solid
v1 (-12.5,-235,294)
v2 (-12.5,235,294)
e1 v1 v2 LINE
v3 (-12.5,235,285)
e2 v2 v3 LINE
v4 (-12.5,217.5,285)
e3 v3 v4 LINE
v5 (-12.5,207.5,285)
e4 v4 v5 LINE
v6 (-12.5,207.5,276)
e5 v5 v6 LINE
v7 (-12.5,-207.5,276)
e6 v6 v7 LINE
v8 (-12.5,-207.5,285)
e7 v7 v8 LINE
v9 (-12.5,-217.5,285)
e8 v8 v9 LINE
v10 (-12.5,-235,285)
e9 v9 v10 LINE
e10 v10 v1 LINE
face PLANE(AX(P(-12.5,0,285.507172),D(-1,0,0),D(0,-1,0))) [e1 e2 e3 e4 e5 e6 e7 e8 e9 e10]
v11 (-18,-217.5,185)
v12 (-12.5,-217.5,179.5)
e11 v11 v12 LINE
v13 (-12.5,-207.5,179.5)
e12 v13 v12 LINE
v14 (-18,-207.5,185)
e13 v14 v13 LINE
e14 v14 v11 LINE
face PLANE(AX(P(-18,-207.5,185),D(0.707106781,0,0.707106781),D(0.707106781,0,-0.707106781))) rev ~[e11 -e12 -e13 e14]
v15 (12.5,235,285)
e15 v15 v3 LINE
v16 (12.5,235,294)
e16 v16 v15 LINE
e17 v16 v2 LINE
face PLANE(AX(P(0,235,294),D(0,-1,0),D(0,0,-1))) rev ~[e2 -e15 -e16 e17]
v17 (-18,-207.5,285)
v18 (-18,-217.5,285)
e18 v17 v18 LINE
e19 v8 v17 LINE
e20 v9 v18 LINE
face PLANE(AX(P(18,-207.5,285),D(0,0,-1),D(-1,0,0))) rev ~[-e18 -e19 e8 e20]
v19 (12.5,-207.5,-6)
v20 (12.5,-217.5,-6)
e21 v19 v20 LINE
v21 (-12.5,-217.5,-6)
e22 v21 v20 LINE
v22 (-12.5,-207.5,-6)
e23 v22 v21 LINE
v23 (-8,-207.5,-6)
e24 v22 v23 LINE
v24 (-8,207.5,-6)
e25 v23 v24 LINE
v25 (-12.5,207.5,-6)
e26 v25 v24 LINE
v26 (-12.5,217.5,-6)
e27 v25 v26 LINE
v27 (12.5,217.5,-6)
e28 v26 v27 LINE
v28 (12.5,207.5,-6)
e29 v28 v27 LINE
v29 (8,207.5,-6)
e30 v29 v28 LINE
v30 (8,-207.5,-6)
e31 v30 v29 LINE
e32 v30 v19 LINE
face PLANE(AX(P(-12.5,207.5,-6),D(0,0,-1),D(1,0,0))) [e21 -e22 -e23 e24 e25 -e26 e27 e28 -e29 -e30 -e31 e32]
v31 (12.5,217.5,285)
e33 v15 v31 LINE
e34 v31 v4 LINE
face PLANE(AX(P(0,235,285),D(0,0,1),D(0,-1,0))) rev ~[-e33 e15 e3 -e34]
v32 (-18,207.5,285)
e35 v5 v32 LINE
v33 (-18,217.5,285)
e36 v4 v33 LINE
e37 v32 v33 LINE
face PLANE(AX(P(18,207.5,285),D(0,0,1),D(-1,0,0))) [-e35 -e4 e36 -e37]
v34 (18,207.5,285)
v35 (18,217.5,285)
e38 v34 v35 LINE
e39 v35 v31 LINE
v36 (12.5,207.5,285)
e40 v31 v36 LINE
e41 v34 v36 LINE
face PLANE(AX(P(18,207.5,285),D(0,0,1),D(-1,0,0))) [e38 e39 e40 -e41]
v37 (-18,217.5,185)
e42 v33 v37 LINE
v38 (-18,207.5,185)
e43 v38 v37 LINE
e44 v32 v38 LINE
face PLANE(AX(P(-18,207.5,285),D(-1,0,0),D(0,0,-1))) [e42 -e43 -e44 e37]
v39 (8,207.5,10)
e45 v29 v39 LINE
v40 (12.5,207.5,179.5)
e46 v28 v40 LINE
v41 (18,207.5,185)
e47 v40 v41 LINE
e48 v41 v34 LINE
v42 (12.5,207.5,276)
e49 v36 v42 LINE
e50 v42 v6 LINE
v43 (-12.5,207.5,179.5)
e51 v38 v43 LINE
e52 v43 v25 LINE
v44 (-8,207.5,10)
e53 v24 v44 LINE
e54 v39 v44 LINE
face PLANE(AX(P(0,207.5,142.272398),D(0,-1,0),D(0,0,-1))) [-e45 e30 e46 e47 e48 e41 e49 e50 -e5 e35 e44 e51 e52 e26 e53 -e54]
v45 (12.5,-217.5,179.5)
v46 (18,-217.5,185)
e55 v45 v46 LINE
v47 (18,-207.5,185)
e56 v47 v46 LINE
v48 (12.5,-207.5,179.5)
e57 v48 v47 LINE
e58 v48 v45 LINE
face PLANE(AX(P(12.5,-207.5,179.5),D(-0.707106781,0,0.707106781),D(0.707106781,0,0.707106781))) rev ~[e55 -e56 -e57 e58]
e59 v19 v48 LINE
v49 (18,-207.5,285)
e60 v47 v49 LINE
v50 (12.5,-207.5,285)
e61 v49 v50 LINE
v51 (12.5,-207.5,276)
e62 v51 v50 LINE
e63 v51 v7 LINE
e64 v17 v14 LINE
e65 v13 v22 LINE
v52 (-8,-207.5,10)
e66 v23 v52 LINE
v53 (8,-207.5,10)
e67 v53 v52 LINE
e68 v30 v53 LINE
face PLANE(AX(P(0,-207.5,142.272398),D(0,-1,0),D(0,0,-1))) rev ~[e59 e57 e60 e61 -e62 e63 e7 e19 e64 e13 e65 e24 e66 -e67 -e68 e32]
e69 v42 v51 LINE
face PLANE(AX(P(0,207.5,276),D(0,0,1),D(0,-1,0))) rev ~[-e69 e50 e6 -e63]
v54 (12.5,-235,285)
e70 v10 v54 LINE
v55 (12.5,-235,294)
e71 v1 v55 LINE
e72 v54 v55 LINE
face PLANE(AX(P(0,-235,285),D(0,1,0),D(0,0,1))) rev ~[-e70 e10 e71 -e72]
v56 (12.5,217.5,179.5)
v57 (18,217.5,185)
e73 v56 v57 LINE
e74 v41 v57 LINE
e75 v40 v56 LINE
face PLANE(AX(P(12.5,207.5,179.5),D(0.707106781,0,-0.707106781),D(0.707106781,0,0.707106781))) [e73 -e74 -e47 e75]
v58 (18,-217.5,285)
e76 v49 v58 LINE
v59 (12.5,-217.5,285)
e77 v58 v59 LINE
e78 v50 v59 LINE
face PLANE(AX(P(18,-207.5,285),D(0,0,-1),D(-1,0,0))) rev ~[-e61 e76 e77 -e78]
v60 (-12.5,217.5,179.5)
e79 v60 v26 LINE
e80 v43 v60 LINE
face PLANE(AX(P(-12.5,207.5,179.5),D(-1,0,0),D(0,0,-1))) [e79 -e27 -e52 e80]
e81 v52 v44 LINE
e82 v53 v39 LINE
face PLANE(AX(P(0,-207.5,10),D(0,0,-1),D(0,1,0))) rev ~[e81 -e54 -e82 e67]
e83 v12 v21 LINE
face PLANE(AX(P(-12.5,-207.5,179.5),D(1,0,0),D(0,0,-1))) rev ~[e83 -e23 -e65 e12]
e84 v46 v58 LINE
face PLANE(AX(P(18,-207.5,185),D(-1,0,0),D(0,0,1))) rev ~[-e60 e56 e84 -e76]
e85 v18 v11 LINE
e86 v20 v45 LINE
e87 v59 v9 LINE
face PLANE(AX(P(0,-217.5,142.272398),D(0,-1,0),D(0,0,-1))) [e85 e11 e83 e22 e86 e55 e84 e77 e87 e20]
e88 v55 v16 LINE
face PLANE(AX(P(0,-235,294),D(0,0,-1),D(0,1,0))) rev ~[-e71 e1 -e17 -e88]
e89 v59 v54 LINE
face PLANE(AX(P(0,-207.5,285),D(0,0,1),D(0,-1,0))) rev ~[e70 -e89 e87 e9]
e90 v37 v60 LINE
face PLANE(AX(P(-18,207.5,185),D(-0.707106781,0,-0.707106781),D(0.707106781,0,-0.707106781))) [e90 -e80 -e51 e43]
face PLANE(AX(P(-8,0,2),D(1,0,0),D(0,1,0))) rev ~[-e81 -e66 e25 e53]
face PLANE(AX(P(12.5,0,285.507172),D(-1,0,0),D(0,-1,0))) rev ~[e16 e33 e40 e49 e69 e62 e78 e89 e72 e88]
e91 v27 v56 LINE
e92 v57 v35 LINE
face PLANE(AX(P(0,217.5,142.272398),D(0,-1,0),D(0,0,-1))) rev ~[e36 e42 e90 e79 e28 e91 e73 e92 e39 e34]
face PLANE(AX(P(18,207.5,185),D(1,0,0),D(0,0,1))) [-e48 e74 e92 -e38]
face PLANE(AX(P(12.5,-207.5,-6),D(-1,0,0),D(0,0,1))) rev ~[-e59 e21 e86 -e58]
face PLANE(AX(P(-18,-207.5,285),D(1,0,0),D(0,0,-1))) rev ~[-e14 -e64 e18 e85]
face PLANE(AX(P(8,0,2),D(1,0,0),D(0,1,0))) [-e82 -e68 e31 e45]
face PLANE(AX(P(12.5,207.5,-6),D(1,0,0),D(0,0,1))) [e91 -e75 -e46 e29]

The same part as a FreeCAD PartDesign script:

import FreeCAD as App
import Part
import Sketcher
from FreeCAD import Vector
Q = App.Units.Quantity

doc = App.newDocument("Part")
body = doc.addObject("PartDesign::Body", "Body")

sketch1 = body.newObject("Sketcher::SketchObject", "Sketch")
sketch1.AttachmentSupport = (doc.getObject("YZ_Plane"), [""])
sketch1.MapMode = "FlatFace"
sketch1.addGeometry([
    Part.LineSegment(Vector(235, 294, 0), Vector(-235, 294, 0)),
    Part.LineSegment(Vector(-235, 294, 0), Vector(-235, 285, 0)),
    Part.LineSegment(Vector(-235, 285, 0), Vector(-208, 285, 0)),
    Part.LineSegment(Vector(-208, 285, 0), Vector(-208, 276, 0)),
    Part.LineSegment(Vector(-208, 276, 0), Vector(208, 276, 0)),
    Part.LineSegment(Vector(208, 276, 0), Vector(208, 285, 0)),
    Part.LineSegment(Vector(208, 285, 0), Vector(235, 285, 0)),
    Part.LineSegment(Vector(235, 285, 0), Vector(235, 294, 0)),
], False)
sketch1.addConstraint([
    Sketcher.Constraint("Coincident", 0, 2, 1, 1),
    Sketcher.Constraint("Coincident", 1, 2, 2, 1),
    Sketcher.Constraint("Coincident", 2, 2, 3, 1),
    Sketcher.Constraint("Coincident", 3, 2, 4, 1),
    Sketcher.Constraint("Coincident", 4, 2, 5, 1),
    Sketcher.Constraint("Coincident", 5, 2, 6, 1),
    Sketcher.Constraint("Coincident", 6, 2, 7, 1),
    Sketcher.Constraint("Coincident", 7, 2, 0, 1),
    Sketcher.Constraint("Horizontal", 0),
    Sketcher.Constraint("Vertical", 1),
    Sketcher.Constraint("Horizontal", 2),
    Sketcher.Constraint("Vertical", 3),
    Sketcher.Constraint("Horizontal", 4),
    Sketcher.Constraint("Vertical", 5),
    Sketcher.Constraint("Horizontal", 6),
    Sketcher.Constraint("Vertical", 7),
    Sketcher.Constraint("Symmetric", 2, 2, 5, 2, -2),
    Sketcher.Constraint("Equal", 2, 6),
    Sketcher.Constraint("Equal", 1, 3),
    Sketcher.Constraint("DistanceX", 0, 2, 0, 1, Q("470 mm")),
    Sketcher.Constraint("DistanceX", 4, 1, 4, 2, Q("415 mm")),
    Sketcher.Constraint("DistanceY", 1, 2, 1, 1, Q("9 mm")),
    Sketcher.Constraint("DistanceY", -1, 1, 0, 2, Q("294 mm")),
])
pad1 = body.newObject("PartDesign::Pad", "Pad")
pad1.Profile = sketch1
pad1.Length = 25
pad1.Midplane = True

sketch2 = body.newObject("Sketcher::SketchObject", "Sketch001")
sketch2.AttachmentSupport = (doc.getObject("XZ_Plane"), [""])
sketch2.MapMode = "FlatFace"
sketch2.AttachmentOffset = App.Placement(Vector(0, 0, 207.5), App.Rotation())
sketch2.addGeometry([
    Part.LineSegment(Vector(18, 285, 0), Vector(-18, 285, 0)),
    Part.LineSegment(Vector(-18, 285, 0), Vector(-18, 185, 0)),
    Part.LineSegment(Vector(-18, 185, 0), Vector(-12, 180, 0)),
    Part.LineSegment(Vector(-12, 180, 0), Vector(-12, -6, 0)),
    Part.LineSegment(Vector(-12, -6, 0), Vector(12, -6, 0)),
    Part.LineSegment(Vector(12, -6, 0), Vector(12, 180, 0)),
    Part.LineSegment(Vector(12, 180, 0), Vector(18, 185, 0)),
    Part.LineSegment(Vector(18, 185, 0), Vector(18, 285, 0)),
], False)
sketch2.addConstraint([
    Sketcher.Constraint("Coincident", 0, 2, 1, 1),
    Sketcher.Constraint("Coincident", 1, 2, 2, 1),
    Sketcher.Constraint("Coincident", 2, 2, 3, 1),
    Sketcher.Constraint("Coincident", 3, 2, 4, 1),
    Sketcher.Constraint("Coincident", 4, 2, 5, 1),
    Sketcher.Constraint("Coincident", 5, 2, 6, 1),
    Sketcher.Constraint("Coincident", 6, 2, 7, 1),
    Sketcher.Constraint("Coincident", 7, 2, 0, 1),
    Sketcher.Constraint("Horizontal", 0),
    Sketcher.Constraint("Vertical", 1),
    Sketcher.Constraint("Vertical", 3),
    Sketcher.Constraint("Horizontal", 4),
    Sketcher.Constraint("Vertical", 5),
    Sketcher.Constraint("Vertical", 7),
    Sketcher.Constraint("Symmetric", 2, 2, 5, 2, -2),
    Sketcher.Constraint("Symmetric", 1, 2, 6, 2, -2),
    Sketcher.Constraint("Perpendicular", 2, 6),
    Sketcher.Constraint("DistanceX", 0, 2, 0, 1, Q("36 mm")),
    Sketcher.Constraint("DistanceX", 4, 1, 4, 2, Q("25 mm")),
    Sketcher.Constraint("DistanceY", 1, 2, 1, 1, Q("100 mm")),
    Sketcher.Constraint("DistanceY", 3, 2, 3, 1, Q("185.5 mm")),
    Sketcher.Constraint("DistanceY", -1, 1, 0, 2, Q("285 mm")),
])
pad2 = body.newObject("PartDesign::Pad", "Pad001")
pad2.Profile = sketch2
pad2.Length = 10

sketch3 = body.newObject("Sketcher::SketchObject", "Sketch002")
sketch3.AttachmentSupport = (doc.getObject("XZ_Plane"), [""])
sketch3.MapMode = "FlatFace"
sketch3.AttachmentOffset = App.Placement(Vector(0, 0, -207.5), App.Rotation())
sketch3.addGeometry([
    Part.LineSegment(Vector(12, 180, 0), Vector(12, -6, 0)),
    Part.LineSegment(Vector(12, -6, 0), Vector(-12, -6, 0)),
    Part.LineSegment(Vector(-12, -6, 0), Vector(-12, 180, 0)),
    Part.LineSegment(Vector(-12, 180, 0), Vector(-18, 185, 0)),
    Part.LineSegment(Vector(-18, 185, 0), Vector(-18, 285, 0)),
    Part.LineSegment(Vector(-18, 285, 0), Vector(18, 285, 0)),
    Part.LineSegment(Vector(18, 285, 0), Vector(18, 185, 0)),
    Part.LineSegment(Vector(18, 185, 0), Vector(12, 180, 0)),
], False)
sketch3.addConstraint([
    Sketcher.Constraint("Coincident", 0, 2, 1, 1),
    Sketcher.Constraint("Coincident", 1, 2, 2, 1),
    Sketcher.Constraint("Coincident", 2, 2, 3, 1),
    Sketcher.Constraint("Coincident", 3, 2, 4, 1),
    Sketcher.Constraint("Coincident", 4, 2, 5, 1),
    Sketcher.Constraint("Coincident", 5, 2, 6, 1),
    Sketcher.Constraint("Coincident", 6, 2, 7, 1),
    Sketcher.Constraint("Coincident", 7, 2, 0, 1),
    Sketcher.Constraint("Vertical", 0),
    Sketcher.Constraint("Horizontal", 1),
    Sketcher.Constraint("Vertical", 2),
    Sketcher.Constraint("Vertical", 4),
    Sketcher.Constraint("Horizontal", 5),
    Sketcher.Constraint("Vertical", 6),
    Sketcher.Constraint("Symmetric", 3, 2, 6, 2, -2),
    Sketcher.Constraint("Symmetric", 2, 2, 7, 2, -2),
    Sketcher.Constraint("Perpendicular", 3, 7),
    Sketcher.Constraint("DistanceX", 1, 2, 1, 1, Q("25 mm")),
    Sketcher.Constraint("DistanceX", 5, 1, 5, 2, Q("36 mm")),
    Sketcher.Constraint("DistanceY", 4, 1, 4, 2, Q("100 mm")),
    Sketcher.Constraint("DistanceY", 0, 2, 0, 1, Q("185.5 mm")),
    Sketcher.Constraint("DistanceY", 0, 2, -1, 1, Q("6 mm")),
])
pad3 = body.newObject("PartDesign::Pad", "Pad002")
pad3.Profile = sketch3
pad3.Length = 10
pad3.Reversed = True

sketch4 = body.newObject("Sketcher::SketchObject", "Sketch003")
sketch4.AttachmentSupport = (doc.getObject("YZ_Plane"), [""])
sketch4.MapMode = "FlatFace"
sketch4.addGeometry([
    Part.LineSegment(Vector(-208, 10, 0), Vector(-208, -6, 0)),
    Part.LineSegment(Vector(-208, -6, 0), Vector(208, -6, 0)),
    Part.LineSegment(Vector(208, -6, 0), Vector(208, 10, 0)),
    Part.LineSegment(Vector(208, 10, 0), Vector(-208, 10, 0)),
], False)
sketch4.addConstraint([
    Sketcher.Constraint("Coincident", 0, 2, 1, 1),
    Sketcher.Constraint("Coincident", 1, 2, 2, 1),
    Sketcher.Constraint("Coincident", 2, 2, 3, 1),
    Sketcher.Constraint("Coincident", 3, 2, 0, 1),
    Sketcher.Constraint("Vertical", 0),
    Sketcher.Constraint("Horizontal", 1),
    Sketcher.Constraint("Vertical", 2),
    Sketcher.Constraint("Horizontal", 3),
    Sketcher.Constraint("DistanceX", 1, 1, 1, 2, Q("415 mm")),
    Sketcher.Constraint("DistanceY", 0, 2, 0, 1, Q("16 mm")),
    Sketcher.Constraint("DistanceY", 0, 2, -1, 1, Q("6 mm")),
    Sketcher.Constraint("DistanceX", 0, 2, -1, 1, Q("207.5 mm")),
])
pad4 = body.newObject("PartDesign::Pad", "Pad003")
pad4.Profile = sketch4
pad4.Length = 16
pad4.Midplane = True

doc.recompute()
